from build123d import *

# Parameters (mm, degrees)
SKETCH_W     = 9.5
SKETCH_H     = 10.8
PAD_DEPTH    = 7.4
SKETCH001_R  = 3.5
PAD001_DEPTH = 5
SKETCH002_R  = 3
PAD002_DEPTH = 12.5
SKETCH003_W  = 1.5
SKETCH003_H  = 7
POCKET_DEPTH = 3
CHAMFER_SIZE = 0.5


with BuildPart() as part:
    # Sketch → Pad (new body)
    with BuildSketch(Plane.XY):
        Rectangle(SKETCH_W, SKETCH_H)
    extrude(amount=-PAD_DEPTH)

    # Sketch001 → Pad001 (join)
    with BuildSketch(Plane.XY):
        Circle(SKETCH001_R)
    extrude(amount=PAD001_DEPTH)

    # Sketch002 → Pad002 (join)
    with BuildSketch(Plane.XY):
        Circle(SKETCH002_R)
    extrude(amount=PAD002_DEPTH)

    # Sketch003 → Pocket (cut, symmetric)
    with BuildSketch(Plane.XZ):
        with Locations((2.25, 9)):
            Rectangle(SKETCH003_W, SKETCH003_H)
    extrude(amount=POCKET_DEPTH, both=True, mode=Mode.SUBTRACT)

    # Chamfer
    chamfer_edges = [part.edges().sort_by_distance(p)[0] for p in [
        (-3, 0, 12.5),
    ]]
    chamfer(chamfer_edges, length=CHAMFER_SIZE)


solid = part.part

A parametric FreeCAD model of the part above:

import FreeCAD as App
import Part
import Sketcher
Q = App.Units.Quantity


def edges_at(feature, points):
    """Names of the edges that pass closest to the given points."""
    edges = feature.Shape.Edges
    near = lambda p: min(range(len(edges)), key=lambda i: edges[i].distToShape(Part.Vertex(*p))[0])
    return sorted({f"Edge{near(p) + 1}" for p in points})


def add_polygon(sketch, points):
    """Adds a closed chain of lines whose ends are joined by coincident constraints."""
    first, n = sketch.GeometryCount, len(points)
    for a, b in zip(points, points[1:] + points[:1]):
        sketch.addGeometry(Part.LineSegment(App.Vector(*a, 0), App.Vector(*b, 0)), False)
    for i in range(n):
        sketch.addConstraint(Sketcher.Constraint("Coincident", first + i, 2, first + (i + 1) % n, 1))

doc = App.newDocument("Part")
params = doc.addObject("Spreadsheet::Sheet", "Params")
for row, (alias, value) in enumerate([
    ("sketch1_width", "9.5 mm"),
    ("sketch1_height", "10.8 mm"),
    ("pad1_length", "7.4 mm"),
    ("sketch2_diameter", "7 mm"),
    ("pad2_length", "5 mm"),
    ("sketch3_diameter", "6 mm"),
    ("pad3_length", "12.5 mm"),
    ("sketch4_height", "7 mm"),
    ("sketch4_width", "1.5 mm"),
    ("pocket1_length", "6 mm"),
    ("chamfer_size", "0.5 mm"),
], start=1):
    params.set(f"A{row}", alias)
    params.set(f"B{row}", "=" + value)
    params.setAlias(f"B{row}", alias)

body = doc.addObject("PartDesign::Body", "Body")

sketch1 = body.newObject("Sketcher::SketchObject", "Sketch")
sketch1.AttachmentSupport = (doc.getObject("XY_Plane"), [""])
sketch1.MapMode = "FlatFace"
add_polygon(sketch1, [(-5, 5), (-5, -5), (5, -5), (5, 5)])
sketch1.addConstraint([
    Sketcher.Constraint("Vertical", 0),
    Sketcher.Constraint("Horizontal", 1),
    Sketcher.Constraint("Vertical", 2),
    Sketcher.Constraint("Horizontal", 3),
    Sketcher.Constraint("Symmetric", 0, 2, 2, 2, -1, 1),
    Sketcher.Constraint("DistanceX", 1, 1, 1, 2, Q("9.5 mm")),
    Sketcher.Constraint("DistanceY", 0, 2, 0, 1, Q("10.8 mm")),
])
sketch1.setExpression("Constraints[9]", "Params.sketch1_width")
sketch1.setExpression("Constraints[10]", "Params.sketch1_height")
pad1 = body.newObject("PartDesign::Pad", "Pad")
pad1.Profile = sketch1
pad1.setExpression("Length", "Params.pad1_length")
pad1.Reversed = True

sketch2 = body.newObject("Sketcher::SketchObject", "Sketch001")
sketch2.AttachmentSupport = (doc.getObject("XY_Plane"), [""])
sketch2.MapMode = "FlatFace"
sketch2.addGeometry(Part.Circle(App.Vector(0, 0, 0), App.Vector(0, 0, 1), 3.5), False)
sketch2.addConstraint([
    Sketcher.Constraint("Coincident", 0, 3, -1, 1),
    Sketcher.Constraint("Diameter", 0, Q("7 mm")),
])
sketch2.setExpression("Constraints[1]", "Params.sketch2_diameter")
pad2 = body.newObject("PartDesign::Pad", "Pad001")
pad2.Profile = sketch2
pad2.setExpression("Length", "Params.pad2_length")

sketch3 = body.newObject("Sketcher::SketchObject", "Sketch002")
sketch3.AttachmentSupport = (doc.getObject("XY_Plane"), [""])
sketch3.MapMode = "FlatFace"
sketch3.addGeometry(Part.Circle(App.Vector(0, 0, 0), App.Vector(0, 0, 1), 3), False)
sketch3.addConstraint([
    Sketcher.Constraint("Coincident", 0, 3, -1, 1),
    Sketcher.Constraint("Diameter", 0, Q("6 mm")),
])
sketch3.setExpression("Constraints[1]", "Params.sketch3_diameter")
pad3 = body.newObject("PartDesign::Pad", "Pad002")
pad3.Profile = sketch3
pad3.setExpression("Length", "Params.pad3_length")

sketch4 = body.newObject("Sketcher::SketchObject", "Sketch003")
sketch4.AttachmentSupport = (doc.getObject("XZ_Plane"), [""])
sketch4.MapMode = "FlatFace"
add_polygon(sketch4, [(1.5, 12.5), (1.5, 5.5), (3, 5.5), (3, 12.5)])
sketch4.addConstraint([
    Sketcher.Constraint("Vertical", 0),
    Sketcher.Constraint("Horizontal", 1),
    Sketcher.Constraint("Vertical", 2),
    Sketcher.Constraint("Horizontal", 3),
    Sketcher.Constraint("DistanceY", 0, 2, 0, 1, Q("7 mm")),
    Sketcher.Constraint("DistanceX", 1, 1, 1, 2, Q("1.5 mm")),
    Sketcher.Constraint("DistanceX", -1, 1, 1, 2, Q("3 mm")),
    Sketcher.Constraint("DistanceY", -1, 1, 0, 2, Q("5.5 mm")),
])
sketch4.setExpression("Constraints[8]", "Params.sketch4_height")
sketch4.setExpression("Constraints[9]", "Params.sketch4_width")
pocket1 = body.newObject("PartDesign::Pocket", "Pocket")
pocket1.Profile = sketch4
pocket1.setExpression("Length", "Params.pocket1_length")
pocket1.Midplane = True
doc.recompute()

chamfer = body.newObject("PartDesign::Chamfer", "Chamfer")
chamfer.Base = (pocket1, edges_at(pocket1, [(-3, 0, 12.5)]))
chamfer.setExpression("Size", "Params.chamfer_size")

doc.recompute()
